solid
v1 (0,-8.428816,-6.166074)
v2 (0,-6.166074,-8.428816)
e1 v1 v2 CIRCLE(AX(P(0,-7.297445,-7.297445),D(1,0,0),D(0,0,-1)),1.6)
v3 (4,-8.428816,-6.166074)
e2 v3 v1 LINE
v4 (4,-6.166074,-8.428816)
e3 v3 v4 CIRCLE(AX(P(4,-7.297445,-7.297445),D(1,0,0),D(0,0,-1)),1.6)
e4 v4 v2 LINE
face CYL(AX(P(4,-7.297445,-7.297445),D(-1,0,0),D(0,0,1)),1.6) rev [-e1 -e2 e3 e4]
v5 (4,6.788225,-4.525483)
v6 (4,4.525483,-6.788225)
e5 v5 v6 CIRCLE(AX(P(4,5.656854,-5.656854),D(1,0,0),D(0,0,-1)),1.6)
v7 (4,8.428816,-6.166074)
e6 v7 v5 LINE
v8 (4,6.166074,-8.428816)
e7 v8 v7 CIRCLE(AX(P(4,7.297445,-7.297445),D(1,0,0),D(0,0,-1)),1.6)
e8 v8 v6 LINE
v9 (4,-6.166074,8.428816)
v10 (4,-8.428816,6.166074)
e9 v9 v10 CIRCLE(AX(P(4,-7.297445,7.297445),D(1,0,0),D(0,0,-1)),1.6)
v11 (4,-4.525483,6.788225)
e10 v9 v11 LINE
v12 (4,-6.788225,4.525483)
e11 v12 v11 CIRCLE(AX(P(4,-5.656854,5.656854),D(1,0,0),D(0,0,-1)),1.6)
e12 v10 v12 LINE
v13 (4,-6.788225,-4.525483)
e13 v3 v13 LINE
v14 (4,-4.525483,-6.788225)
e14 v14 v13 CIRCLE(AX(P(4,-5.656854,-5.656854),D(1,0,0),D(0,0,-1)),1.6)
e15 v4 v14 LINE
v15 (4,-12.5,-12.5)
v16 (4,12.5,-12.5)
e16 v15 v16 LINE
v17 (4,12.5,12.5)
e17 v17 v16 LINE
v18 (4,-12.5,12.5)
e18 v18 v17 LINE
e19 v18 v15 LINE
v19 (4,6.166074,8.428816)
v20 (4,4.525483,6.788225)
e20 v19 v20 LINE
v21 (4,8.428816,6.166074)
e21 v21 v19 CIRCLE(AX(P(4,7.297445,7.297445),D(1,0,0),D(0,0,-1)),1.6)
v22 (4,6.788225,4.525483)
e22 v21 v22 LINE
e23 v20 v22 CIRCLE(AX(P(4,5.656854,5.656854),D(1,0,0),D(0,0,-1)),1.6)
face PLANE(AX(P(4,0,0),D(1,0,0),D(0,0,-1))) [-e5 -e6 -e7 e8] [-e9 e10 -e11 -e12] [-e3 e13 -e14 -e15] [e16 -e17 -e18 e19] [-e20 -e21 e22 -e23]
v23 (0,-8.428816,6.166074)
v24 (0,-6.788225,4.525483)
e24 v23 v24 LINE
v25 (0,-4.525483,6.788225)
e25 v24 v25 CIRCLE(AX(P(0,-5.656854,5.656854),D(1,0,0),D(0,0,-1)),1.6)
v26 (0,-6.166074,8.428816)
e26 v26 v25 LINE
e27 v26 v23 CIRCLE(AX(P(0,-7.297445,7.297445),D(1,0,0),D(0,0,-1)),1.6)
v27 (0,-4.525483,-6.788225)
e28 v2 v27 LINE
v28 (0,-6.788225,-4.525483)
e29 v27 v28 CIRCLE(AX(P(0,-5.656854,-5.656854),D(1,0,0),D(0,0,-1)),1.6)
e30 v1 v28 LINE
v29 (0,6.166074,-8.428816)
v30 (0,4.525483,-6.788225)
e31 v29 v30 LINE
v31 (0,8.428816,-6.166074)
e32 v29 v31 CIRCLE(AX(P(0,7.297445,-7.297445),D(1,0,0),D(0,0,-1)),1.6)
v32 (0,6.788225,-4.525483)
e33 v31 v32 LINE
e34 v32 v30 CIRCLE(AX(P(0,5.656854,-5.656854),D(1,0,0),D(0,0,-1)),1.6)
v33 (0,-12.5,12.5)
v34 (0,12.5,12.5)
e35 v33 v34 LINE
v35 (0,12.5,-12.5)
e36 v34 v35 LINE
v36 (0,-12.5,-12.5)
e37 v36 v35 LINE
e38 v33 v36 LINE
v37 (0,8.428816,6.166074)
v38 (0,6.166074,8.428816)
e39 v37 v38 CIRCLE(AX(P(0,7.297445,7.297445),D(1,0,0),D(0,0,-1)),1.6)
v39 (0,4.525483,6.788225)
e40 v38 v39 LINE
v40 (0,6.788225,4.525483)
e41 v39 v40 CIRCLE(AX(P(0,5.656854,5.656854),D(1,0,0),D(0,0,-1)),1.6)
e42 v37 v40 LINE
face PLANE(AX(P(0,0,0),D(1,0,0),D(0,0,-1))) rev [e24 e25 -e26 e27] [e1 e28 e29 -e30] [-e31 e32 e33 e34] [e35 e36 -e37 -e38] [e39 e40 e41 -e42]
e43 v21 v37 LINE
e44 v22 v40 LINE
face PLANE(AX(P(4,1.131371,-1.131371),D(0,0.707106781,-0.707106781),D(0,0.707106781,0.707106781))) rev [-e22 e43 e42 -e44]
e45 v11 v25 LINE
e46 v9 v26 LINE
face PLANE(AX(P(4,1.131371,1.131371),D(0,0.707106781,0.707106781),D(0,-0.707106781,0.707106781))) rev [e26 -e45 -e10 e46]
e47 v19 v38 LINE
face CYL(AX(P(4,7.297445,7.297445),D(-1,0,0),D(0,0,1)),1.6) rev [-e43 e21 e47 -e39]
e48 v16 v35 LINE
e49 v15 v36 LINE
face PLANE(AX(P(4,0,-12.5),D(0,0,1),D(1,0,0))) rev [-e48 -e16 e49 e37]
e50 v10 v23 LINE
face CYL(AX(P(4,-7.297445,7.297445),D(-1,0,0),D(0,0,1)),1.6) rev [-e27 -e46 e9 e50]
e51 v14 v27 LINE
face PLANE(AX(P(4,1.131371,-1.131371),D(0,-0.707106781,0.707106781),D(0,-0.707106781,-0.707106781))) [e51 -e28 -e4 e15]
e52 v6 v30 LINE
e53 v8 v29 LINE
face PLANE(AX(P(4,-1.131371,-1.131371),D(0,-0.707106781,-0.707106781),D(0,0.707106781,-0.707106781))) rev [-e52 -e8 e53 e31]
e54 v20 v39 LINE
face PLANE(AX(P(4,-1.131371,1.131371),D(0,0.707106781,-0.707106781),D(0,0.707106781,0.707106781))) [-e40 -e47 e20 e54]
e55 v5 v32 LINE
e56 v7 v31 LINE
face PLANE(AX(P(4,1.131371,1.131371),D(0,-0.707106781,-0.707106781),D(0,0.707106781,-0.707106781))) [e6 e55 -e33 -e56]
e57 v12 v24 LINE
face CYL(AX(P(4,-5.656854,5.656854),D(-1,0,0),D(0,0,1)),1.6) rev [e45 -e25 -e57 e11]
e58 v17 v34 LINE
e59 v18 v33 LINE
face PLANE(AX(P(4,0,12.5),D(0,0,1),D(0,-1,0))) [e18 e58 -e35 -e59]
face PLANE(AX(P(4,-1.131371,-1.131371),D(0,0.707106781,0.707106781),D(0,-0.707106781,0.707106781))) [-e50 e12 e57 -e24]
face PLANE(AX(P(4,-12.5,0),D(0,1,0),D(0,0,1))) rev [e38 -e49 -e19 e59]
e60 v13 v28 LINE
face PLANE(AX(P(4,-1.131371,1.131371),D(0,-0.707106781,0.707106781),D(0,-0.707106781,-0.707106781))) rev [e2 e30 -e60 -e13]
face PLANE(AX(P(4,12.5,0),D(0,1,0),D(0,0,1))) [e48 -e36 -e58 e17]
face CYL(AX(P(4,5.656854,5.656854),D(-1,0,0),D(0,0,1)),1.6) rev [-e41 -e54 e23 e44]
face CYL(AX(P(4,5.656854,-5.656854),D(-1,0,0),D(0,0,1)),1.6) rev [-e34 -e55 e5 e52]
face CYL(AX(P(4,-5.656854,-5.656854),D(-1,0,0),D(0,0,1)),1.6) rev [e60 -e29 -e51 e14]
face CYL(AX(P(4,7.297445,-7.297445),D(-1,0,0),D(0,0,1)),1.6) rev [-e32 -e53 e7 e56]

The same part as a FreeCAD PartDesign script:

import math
import FreeCAD as App
import Part
import Sketcher

doc = App.newDocument("Part")
params = doc.addObject("Spreadsheet::Sheet", "Params")
for row, (alias, value) in enumerate([
    ("sketch1_radius", "1.6 mm"),
    ("sketch1_width", "25 mm"),
    ("pad1_length", "4 mm"),
], start=1):
    params.set(f"A{row}", alias)
    params.set(f"B{row}", "=" + value)
    params.setAlias(f"B{row}", alias)

body = doc.addObject("PartDesign::Body", "Body")

sketch1 = body.newObject("Sketcher::SketchObject", "Sketch")
sketch1.AttachmentSupport = (doc.getObject("YZ_Plane"), [""])
sketch1.MapMode = "FlatFace"
sketch1.addGeometry([
    Part.LineSegment(App.Vector(12.5, 12.5, 0), App.Vector(-12.5, 12.5, 0)),
    Part.LineSegment(App.Vector(-12.5, 12.5, 0), App.Vector(-12.5, -12.5, 0)),
    Part.LineSegment(App.Vector(-12.5, -12.5, 0), App.Vector(12.5, -12.5, 0)),
    Part.LineSegment(App.Vector(12.5, -12.5, 0), App.Vector(12.5, 12.5, 0)),
    Part.ArcOfCircle(Part.Circle(App.Vector(-5.656854, 5.656854, 0), App.Vector(0, 0, 1), 1.6), math.radians(-135), math.radians(45)),
    Part.LineSegment(App.Vector(-6.788225, 4.525483, 0), App.Vector(-8.428816, 6.166074, 0)),
    Part.ArcOfCircle(Part.Circle(App.Vector(-7.297445, 7.297445, 0), App.Vector(0, 0, 1), 1.6), math.radians(45), math.radians(225)),
    Part.LineSegment(App.Vector(-6.166074, 8.428816, 0), App.Vector(-4.525483, 6.788225, 0)),
    Part.ArcOfCircle(Part.Circle(App.Vector(-5.656854, -5.656854, 0), App.Vector(0, 0, 1), 1.6), math.radians(-45), math.radians(135)),
    Part.LineSegment(App.Vector(-4.525483, -6.788225, 0), App.Vector(-6.166074, -8.428816, 0)),
    Part.ArcOfCircle(Part.Circle(App.Vector(-7.297445, -7.297445, 0), App.Vector(0, 0, 1), 1.6), math.radians(135), math.radians(315)),
    Part.LineSegment(App.Vector(-8.428816, -6.166074, 0), App.Vector(-6.788225, -4.525483, 0)),
    Part.ArcOfCircle(Part.Circle(App.Vector(5.656854, 5.656854, 0), App.Vector(0, 0, 1), 1.6), math.radians(135), math.radians(315)),
    Part.LineSegment(App.Vector(4.525483, 6.788225, 0), App.Vector(6.166074, 8.428816, 0)),
    Part.ArcOfCircle(Part.Circle(App.Vector(7.297445, 7.297445, 0), App.Vector(0, 0, 1), 1.6), math.radians(-45), math.radians(135)),
    Part.LineSegment(App.Vector(8.428816, 6.166074, 0), App.Vector(6.788225, 4.525483, 0)),
    Part.ArcOfCircle(Part.Circle(App.Vector(5.656854, -5.656854, 0), App.Vector(0, 0, 1), 1.6), math.radians(45), math.radians(225)),
    Part.LineSegment(App.Vector(6.788225, -4.525483, 0), App.Vector(8.428816, -6.166074, 0)),
    Part.ArcOfCircle(Part.Circle(App.Vector(7.297445, -7.297445, 0), App.Vector(0, 0, 1), 1.6), math.radians(-135), math.radians(45)),
    Part.LineSegment(App.Vector(6.166074, -8.428816, 0), App.Vector(4.525483, -6.788225, 0)),
], False)
sketch1.addConstraint([
    Sketcher.Constraint("Coincident", 0, 2, 1, 1),
    Sketcher.Constraint("Coincident", 1, 2, 2, 1),
    Sketcher.Constraint("Coincident", 2, 2, 3, 1),
    Sketcher.Constraint("Coincident", 3, 2, 0, 1),
    Sketcher.Constraint("Tangent", 4, 1, 5, 1),
    Sketcher.Constraint("Tangent", 5, 2, 6, 2),
    Sketcher.Constraint("Tangent", 6, 1, 7, 1),
    Sketcher.Constraint("Tangent", 7, 2, 4, 2),
    Sketcher.Constraint("Tangent", 8, 1, 9, 1),
    Sketcher.Constraint("Tangent", 9, 2, 10, 2),
    Sketcher.Constraint("Tangent", 10, 1, 11, 1),
    Sketcher.Constraint("Tangent", 11, 2, 8, 2),
    Sketcher.Constraint("Tangent", 12, 1, 13, 1),
    Sketcher.Constraint("Tangent", 13, 2, 14, 2),
    Sketcher.Constraint("Tangent", 14, 1, 15, 1),
    Sketcher.Constraint("Tangent", 15, 2, 12, 2),
    Sketcher.Constraint("Tangent", 16, 1, 17, 1),
    Sketcher.Constraint("Tangent", 17, 2, 18, 2),
    Sketcher.Constraint("Tangent", 18, 1, 19, 1),
    Sketcher.Constraint("Tangent", 19, 2, 16, 2),
    Sketcher.Constraint("Horizontal", 0),
    Sketcher.Constraint("Vertical", 1),
    Sketcher.Constraint("Horizontal", 2),
    Sketcher.Constraint("Vertical", 3),
    Sketcher.Constraint("Equal", 4, 6),
    Sketcher.Constraint("Equal", 6, 8),
    Sketcher.Constraint("Equal", 8, 10),
    Sketcher.Constraint("Equal", 10, 12),
    Sketcher.Constraint("Equal", 12, 14),
    Sketcher.Constraint("Equal", 14, 16),
    Sketcher.Constraint("Equal", 16, 18),
    Sketcher.Constraint("Symmetric", 8, 3, 12, 3, -1, 1),
    Sketcher.Constraint("Symmetric", 10, 3, 14, 3, -1, 1),
    Sketcher.Constraint("Symmetric", 4, 3, 16, 3, -1, 1),
    Sketcher.Constraint("Symmetric", 6, 3, 18, 3, -1, 1),
    Sketcher.Constraint("Symmetric", 0, 2, 2, 2, -1, 1),
    Sketcher.Constraint("Symmetric", 4, 3, 12, 3, -2),
    Sketcher.Constraint("Symmetric", 6, 3, 14, 3, -2),
    Sketcher.Constraint("Perpendicular", 7, 9),
    Sketcher.Constraint("Equal", 2, 1),
    Sketcher.Constraint("Radius", 4, 1.6),
    Sketcher.Constraint("DistanceX", 0, 2, 0, 1, 25.0),
    Sketcher.Constraint("DistanceY", 8, 3, 6, 3, 12.954299),
    Sketcher.Constraint("DistanceX", 6, 3, 12, 3, 12.954299),
    Sketcher.Constraint("DistanceX", 6, 3, 4, 3, 1.640591),
])
sketch1.setExpression("Constraints[40]", "Params.sketch1_radius")
sketch1.setExpression("Constraints[41]", "Params.sketch1_width")
pad1 = body.newObject("PartDesign::Pad", "Pad")
pad1.Profile = sketch1
pad1.setExpression("Length", "Params.pad1_length")

doc.recompute()
